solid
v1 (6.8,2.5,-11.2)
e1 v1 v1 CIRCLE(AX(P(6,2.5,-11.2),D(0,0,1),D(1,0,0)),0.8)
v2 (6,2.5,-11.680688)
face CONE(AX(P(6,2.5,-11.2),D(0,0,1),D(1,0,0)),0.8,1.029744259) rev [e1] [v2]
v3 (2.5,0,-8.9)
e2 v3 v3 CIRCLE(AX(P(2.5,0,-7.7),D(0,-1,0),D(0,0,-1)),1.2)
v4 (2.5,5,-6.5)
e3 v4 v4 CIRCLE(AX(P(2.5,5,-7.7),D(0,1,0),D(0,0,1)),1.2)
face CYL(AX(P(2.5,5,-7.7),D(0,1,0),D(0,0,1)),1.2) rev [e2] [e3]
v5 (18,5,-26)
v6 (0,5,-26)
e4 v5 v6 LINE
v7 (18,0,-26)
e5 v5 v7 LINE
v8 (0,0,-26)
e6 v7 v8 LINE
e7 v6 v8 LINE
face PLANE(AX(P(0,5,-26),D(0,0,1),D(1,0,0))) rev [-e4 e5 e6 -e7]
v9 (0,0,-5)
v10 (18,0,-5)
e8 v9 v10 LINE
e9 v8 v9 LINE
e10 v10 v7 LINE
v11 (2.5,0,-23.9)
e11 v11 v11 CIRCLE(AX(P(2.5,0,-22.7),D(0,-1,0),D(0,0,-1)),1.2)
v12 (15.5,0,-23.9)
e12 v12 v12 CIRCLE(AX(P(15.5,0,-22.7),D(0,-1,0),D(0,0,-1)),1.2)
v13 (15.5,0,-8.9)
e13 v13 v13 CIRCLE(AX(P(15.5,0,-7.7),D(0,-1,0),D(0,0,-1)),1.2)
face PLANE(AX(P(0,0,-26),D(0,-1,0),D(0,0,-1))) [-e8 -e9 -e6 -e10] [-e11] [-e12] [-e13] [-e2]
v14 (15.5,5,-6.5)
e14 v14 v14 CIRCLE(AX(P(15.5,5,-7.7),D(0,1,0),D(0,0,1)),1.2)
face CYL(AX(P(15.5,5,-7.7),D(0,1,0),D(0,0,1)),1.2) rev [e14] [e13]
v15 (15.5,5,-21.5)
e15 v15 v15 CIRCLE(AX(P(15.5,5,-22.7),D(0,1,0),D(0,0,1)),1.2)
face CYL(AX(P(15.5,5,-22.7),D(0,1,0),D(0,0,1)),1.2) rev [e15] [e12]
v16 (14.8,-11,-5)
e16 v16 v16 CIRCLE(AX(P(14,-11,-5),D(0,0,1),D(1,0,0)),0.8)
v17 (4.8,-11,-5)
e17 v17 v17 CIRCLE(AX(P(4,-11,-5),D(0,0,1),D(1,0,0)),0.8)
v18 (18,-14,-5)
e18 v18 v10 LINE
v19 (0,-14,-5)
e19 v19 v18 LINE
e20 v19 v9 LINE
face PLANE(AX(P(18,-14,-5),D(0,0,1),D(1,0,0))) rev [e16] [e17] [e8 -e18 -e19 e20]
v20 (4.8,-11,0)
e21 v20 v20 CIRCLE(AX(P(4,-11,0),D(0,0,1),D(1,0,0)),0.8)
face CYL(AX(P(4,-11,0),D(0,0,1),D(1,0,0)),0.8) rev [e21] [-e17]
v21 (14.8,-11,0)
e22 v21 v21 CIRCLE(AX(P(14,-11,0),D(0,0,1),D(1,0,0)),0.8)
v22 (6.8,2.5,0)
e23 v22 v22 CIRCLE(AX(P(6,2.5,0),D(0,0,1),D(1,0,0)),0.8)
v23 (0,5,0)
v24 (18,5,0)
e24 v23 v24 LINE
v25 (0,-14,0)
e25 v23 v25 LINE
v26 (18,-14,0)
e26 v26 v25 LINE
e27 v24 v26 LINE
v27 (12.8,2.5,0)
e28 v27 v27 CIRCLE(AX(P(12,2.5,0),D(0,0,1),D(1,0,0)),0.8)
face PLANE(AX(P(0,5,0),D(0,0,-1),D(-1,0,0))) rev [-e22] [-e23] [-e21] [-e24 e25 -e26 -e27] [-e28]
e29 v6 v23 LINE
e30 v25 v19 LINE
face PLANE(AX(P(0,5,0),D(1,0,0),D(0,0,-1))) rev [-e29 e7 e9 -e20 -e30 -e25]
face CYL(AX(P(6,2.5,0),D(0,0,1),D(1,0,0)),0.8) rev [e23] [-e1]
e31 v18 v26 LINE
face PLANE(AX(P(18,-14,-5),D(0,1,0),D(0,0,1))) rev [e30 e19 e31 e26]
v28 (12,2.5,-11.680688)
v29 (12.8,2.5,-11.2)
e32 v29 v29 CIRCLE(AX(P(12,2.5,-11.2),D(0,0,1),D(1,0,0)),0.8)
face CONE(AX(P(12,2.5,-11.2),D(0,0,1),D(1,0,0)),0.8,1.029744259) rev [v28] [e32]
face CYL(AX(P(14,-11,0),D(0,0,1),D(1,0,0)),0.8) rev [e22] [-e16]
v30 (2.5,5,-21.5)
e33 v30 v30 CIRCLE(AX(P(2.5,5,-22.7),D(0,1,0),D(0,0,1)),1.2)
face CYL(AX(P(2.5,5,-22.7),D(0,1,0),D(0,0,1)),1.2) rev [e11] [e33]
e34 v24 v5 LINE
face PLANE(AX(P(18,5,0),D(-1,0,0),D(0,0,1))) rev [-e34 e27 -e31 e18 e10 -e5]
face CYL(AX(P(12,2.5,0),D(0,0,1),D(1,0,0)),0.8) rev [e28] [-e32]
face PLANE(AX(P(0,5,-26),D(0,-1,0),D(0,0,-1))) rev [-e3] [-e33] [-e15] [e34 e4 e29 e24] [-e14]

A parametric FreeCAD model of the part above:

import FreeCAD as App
import Part
import Sketcher

doc = App.newDocument("Part")
body = doc.addObject("PartDesign::Body", "Body")

sketch1 = body.newObject("Sketcher::SketchObject", "Sketch")
sketch1.AttachmentSupport = (doc.getObject("XZ_Plane"), [""])
sketch1.MapMode = "FlatFace"
sketch1.addGeometry([
    Part.LineSegment(App.Vector(0, -26, 0), App.Vector(0, 0, 0)),
    Part.LineSegment(App.Vector(0, 0, 0), App.Vector(18, 0, 0)),
    Part.LineSegment(App.Vector(18, 0, 0), App.Vector(18, -26, 0)),
    Part.LineSegment(App.Vector(18, -26, 0), App.Vector(0, -26, 0)),
], False)
sketch1.addConstraint([
    Sketcher.Constraint("Coincident", 0, 2, 1, 1),
    Sketcher.Constraint("Coincident", 1, 2, 2, 1),
    Sketcher.Constraint("Coincident", 2, 2, 3, 1),
    Sketcher.Constraint("Coincident", 3, 2, 0, 1),
    Sketcher.Constraint("Vertical", 0),
    Sketcher.Constraint("Horizontal", 1),
    Sketcher.Constraint("Vertical", 2),
    Sketcher.Constraint("Horizontal", 3),
    Sketcher.Constraint("Coincident", 0, 2, -1, 1),
    Sketcher.Constraint("DistanceX", 1, 1, 1, 2, 18.0),
    Sketcher.Constraint("DistanceY", 0, 1, 0, 2, 26.0),
])
pad1 = body.newObject("PartDesign::Pad", "Pad")
pad1.Profile = sketch1
pad1.Length = 5
pad1.Reversed = True

sketch2 = body.newObject("Sketcher::SketchObject", "Sketch001")
sketch2.AttachmentSupport = (doc.getObject("XZ_Plane"), [""])
sketch2.MapMode = "FlatFace"
sketch2.addGeometry([
    Part.LineSegment(App.Vector(0, 0, 0), App.Vector(0, -5, 0)),
    Part.LineSegment(App.Vector(0, -5, 0), App.Vector(18, -5, 0)),
    Part.LineSegment(App.Vector(18, -5, 0), App.Vector(18, 0, 0)),
    Part.LineSegment(App.Vector(18, 0, 0), App.Vector(0, 0, 0)),
], False)
sketch2.addConstraint([
    Sketcher.Constraint("Coincident", 0, 2, 1, 1),
    Sketcher.Constraint("Coincident", 1, 2, 2, 1),
    Sketcher.Constraint("Coincident", 2, 2, 3, 1),
    Sketcher.Constraint("Coincident", 3, 2, 0, 1),
    Sketcher.Constraint("Vertical", 0),
    Sketcher.Constraint("Horizontal", 1),
    Sketcher.Constraint("Vertical", 2),
    Sketcher.Constraint("Horizontal", 3),
    Sketcher.Constraint("Coincident", 3, 2, -1, 1),
    Sketcher.Constraint("DistanceX", 1, 1, 1, 2, 18.0),
    Sketcher.Constraint("DistanceY", 0, 2, 0, 1, 5.0),
])
pad2 = body.newObject("PartDesign::Pad", "Pad001")
pad2.Profile = sketch2
pad2.Length = 14

sketch3 = body.newObject("Sketcher::SketchObject", "Sketch002")
sketch3.AttachmentSupport = (doc.getObject("XZ_Plane"), [""])
sketch3.MapMode = "FlatFace"
sketch3.AttachmentOffset = App.Placement(App.Vector(0, 0, -5), App.Rotation())
sketch3.addGeometry([
    Part.Circle(App.Vector(2.5, -7.7, 0), App.Vector(0, 0, 1), 1.2),
    Part.Circle(App.Vector(2.5, -22.7, 0), App.Vector(0, 0, 1), 1.2),
    Part.Circle(App.Vector(15.5, -22.7, 0), App.Vector(0, 0, 1), 1.2),
    Part.Circle(App.Vector(15.5, -7.7, 0), App.Vector(0, 0, 1), 1.2),
], False)
sketch3.addConstraint([
    Sketcher.Constraint("Equal", 0, 1),
    Sketcher.Constraint("Equal", 1, 2),
    Sketcher.Constraint("Equal", 2, 3),
    Sketcher.Constraint("Horizontal", 1, 3, 2, 3),
    Sketcher.Constraint("Horizontal", 0, 3, 3, 3),
    Sketcher.Constraint("Vertical", 0, 3, 1, 3),
    Sketcher.Constraint("Vertical", 2, 3, 3, 3),
    Sketcher.Constraint("Diameter", 0, 2.4),
    Sketcher.Constraint("DistanceY", 1, 3, 0, 3, 15.0),
    Sketcher.Constraint("DistanceX", 1, 3, 2, 3, 13.0),
    Sketcher.Constraint("DistanceX", -1, 1, 0, 3, 2.5),
    Sketcher.Constraint("DistanceY", 0, 3, -1, 1, 7.7),
])
doc.recompute()
hole = body.newObject("PartDesign::Hole", "Hole")
hole.Profile = sketch3
hole.ThreadType = "None"
hole.Diameter = 2.4
hole.DepthType = "Dimension"
hole.Depth = 10
hole.DrillPoint = "Angled"
hole.DrillPointAngle = 118
hole.Reversed = True

sketch4 = body.newObject("Sketcher::SketchObject", "Sketch003")
sketch4.AttachmentSupport = (doc.getObject("XY_Plane"), [""])
sketch4.MapMode = "FlatFace"
sketch4.addGeometry([
    Part.Circle(App.Vector(6, 2.5, 0), App.Vector(0, 0, 1), 0.8),
    Part.Circle(App.Vector(12, 2.5, 0), App.Vector(0, 0, 1), 0.8),
    Part.Circle(App.Vector(4, -11, 0), App.Vector(0, 0, 1), 0.8),
    Part.Circle(App.Vector(14, -11, 0), App.Vector(0, 0, 1), 0.8),
], False)
sketch4.addConstraint([
    Sketcher.Constraint("Equal", 0, 1),
    Sketcher.Constraint("Equal", 1, 2),
    Sketcher.Constraint("Equal", 2, 3),
    Sketcher.Constraint("Horizontal", 0, 3, 1, 3),
    Sketcher.Constraint("Horizontal", 2, 3, 3, 3),
    Sketcher.Constraint("Diameter", 0, 1.6),
    Sketcher.Constraint("DistanceX", -1, 1, 0, 3, 6.0),
    Sketcher.Constraint("DistanceX", -1, 1, 1, 3, 12.0),
    Sketcher.Constraint("DistanceX", -1, 1, 2, 3, 4.0),
    Sketcher.Constraint("DistanceY", 2, 3, -1, 1, 11.0),
    Sketcher.Constraint("DistanceX", -1, 1, 3, 3, 14.0),
    Sketcher.Constraint("DistanceY", -1, 1, 0, 3, 2.5),
])
doc.recompute()
hole2 = body.newObject("PartDesign::Hole", "Hole001")
hole2.Profile = sketch4
hole2.ThreadType = "None"
hole2.Diameter = 1.6
hole2.DepthType = "Dimension"
hole2.Depth = 11.2
hole2.DrillPoint = "Angled"
hole2.DrillPointAngle = 118

doc.recompute()
